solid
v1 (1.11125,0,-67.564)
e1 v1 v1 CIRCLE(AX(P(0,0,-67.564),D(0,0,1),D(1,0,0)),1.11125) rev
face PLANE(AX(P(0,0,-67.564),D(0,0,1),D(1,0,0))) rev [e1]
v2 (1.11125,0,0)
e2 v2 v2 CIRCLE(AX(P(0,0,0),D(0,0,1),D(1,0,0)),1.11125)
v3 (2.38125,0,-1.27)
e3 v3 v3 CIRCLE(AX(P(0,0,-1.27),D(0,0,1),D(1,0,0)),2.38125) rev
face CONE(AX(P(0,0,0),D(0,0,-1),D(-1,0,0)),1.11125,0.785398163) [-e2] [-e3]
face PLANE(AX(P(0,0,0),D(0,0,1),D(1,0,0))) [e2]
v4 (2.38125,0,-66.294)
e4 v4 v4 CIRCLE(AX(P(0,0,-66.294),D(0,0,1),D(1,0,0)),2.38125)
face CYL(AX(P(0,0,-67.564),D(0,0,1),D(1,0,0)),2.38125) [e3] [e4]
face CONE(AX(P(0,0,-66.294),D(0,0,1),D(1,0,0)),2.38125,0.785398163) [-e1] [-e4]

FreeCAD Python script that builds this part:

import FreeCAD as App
import Part
import Sketcher
from FreeCAD import Vector
Q = App.Units.Quantity


def edges_at(feature, points):
    """Names of the edges that pass closest to the given points."""
    edges = feature.Shape.Edges
    near = lambda p: min(range(len(edges)), key=lambda i: edges[i].distToShape(Part.Vertex(*p))[0])
    return sorted({f"Edge{near(p) + 1}" for p in points})

doc = App.newDocument("Part")
params = doc.addObject("Spreadsheet::Sheet", "Params")
for row, (alias, value) in enumerate([
    ("sketch1_diameter", "0.1875 in"),
    ("pad1_length", "2.66 in"),
    ("chamfer_size", "0.05 in"),
], start=1):
    params.set(f"A{row}", alias)
    params.set(f"B{row}", "=" + value)
    params.setAlias(f"B{row}", alias)

body = doc.addObject("PartDesign::Body", "Body")

sketch1 = body.newObject("Sketcher::SketchObject", "Sketch")
sketch1.AttachmentSupport = (doc.getObject("XY_Plane"), [""])
sketch1.MapMode = "FlatFace"
sketch1.addGeometry(Part.Circle(Vector(0, 0, 0), Vector(0, 0, 1), 2.4), False)
sketch1.addConstraint(Sketcher.Constraint("Coincident", 0, 3, -1, 1))
sketch1.addConstraint(Sketcher.Constraint("Diameter", 0, Q("0.1875 in")))
sketch1.setExpression("Constraints[1]", "Params.sketch1_diameter")
pad1 = body.newObject("PartDesign::Pad", "Pad")
pad1.Profile = sketch1
pad1.setExpression("Length", "Params.pad1_length")
pad1.Reversed = True
doc.recompute()

chamfer = body.newObject("PartDesign::Chamfer", "Chamfer")
chamfer.Base = (pad1, edges_at(pad1, [(-2.381, 0, 0), (-2.381, 0, -67.564)]))
chamfer.setExpression("Size", "Params.chamfer_size")

doc.recompute()
